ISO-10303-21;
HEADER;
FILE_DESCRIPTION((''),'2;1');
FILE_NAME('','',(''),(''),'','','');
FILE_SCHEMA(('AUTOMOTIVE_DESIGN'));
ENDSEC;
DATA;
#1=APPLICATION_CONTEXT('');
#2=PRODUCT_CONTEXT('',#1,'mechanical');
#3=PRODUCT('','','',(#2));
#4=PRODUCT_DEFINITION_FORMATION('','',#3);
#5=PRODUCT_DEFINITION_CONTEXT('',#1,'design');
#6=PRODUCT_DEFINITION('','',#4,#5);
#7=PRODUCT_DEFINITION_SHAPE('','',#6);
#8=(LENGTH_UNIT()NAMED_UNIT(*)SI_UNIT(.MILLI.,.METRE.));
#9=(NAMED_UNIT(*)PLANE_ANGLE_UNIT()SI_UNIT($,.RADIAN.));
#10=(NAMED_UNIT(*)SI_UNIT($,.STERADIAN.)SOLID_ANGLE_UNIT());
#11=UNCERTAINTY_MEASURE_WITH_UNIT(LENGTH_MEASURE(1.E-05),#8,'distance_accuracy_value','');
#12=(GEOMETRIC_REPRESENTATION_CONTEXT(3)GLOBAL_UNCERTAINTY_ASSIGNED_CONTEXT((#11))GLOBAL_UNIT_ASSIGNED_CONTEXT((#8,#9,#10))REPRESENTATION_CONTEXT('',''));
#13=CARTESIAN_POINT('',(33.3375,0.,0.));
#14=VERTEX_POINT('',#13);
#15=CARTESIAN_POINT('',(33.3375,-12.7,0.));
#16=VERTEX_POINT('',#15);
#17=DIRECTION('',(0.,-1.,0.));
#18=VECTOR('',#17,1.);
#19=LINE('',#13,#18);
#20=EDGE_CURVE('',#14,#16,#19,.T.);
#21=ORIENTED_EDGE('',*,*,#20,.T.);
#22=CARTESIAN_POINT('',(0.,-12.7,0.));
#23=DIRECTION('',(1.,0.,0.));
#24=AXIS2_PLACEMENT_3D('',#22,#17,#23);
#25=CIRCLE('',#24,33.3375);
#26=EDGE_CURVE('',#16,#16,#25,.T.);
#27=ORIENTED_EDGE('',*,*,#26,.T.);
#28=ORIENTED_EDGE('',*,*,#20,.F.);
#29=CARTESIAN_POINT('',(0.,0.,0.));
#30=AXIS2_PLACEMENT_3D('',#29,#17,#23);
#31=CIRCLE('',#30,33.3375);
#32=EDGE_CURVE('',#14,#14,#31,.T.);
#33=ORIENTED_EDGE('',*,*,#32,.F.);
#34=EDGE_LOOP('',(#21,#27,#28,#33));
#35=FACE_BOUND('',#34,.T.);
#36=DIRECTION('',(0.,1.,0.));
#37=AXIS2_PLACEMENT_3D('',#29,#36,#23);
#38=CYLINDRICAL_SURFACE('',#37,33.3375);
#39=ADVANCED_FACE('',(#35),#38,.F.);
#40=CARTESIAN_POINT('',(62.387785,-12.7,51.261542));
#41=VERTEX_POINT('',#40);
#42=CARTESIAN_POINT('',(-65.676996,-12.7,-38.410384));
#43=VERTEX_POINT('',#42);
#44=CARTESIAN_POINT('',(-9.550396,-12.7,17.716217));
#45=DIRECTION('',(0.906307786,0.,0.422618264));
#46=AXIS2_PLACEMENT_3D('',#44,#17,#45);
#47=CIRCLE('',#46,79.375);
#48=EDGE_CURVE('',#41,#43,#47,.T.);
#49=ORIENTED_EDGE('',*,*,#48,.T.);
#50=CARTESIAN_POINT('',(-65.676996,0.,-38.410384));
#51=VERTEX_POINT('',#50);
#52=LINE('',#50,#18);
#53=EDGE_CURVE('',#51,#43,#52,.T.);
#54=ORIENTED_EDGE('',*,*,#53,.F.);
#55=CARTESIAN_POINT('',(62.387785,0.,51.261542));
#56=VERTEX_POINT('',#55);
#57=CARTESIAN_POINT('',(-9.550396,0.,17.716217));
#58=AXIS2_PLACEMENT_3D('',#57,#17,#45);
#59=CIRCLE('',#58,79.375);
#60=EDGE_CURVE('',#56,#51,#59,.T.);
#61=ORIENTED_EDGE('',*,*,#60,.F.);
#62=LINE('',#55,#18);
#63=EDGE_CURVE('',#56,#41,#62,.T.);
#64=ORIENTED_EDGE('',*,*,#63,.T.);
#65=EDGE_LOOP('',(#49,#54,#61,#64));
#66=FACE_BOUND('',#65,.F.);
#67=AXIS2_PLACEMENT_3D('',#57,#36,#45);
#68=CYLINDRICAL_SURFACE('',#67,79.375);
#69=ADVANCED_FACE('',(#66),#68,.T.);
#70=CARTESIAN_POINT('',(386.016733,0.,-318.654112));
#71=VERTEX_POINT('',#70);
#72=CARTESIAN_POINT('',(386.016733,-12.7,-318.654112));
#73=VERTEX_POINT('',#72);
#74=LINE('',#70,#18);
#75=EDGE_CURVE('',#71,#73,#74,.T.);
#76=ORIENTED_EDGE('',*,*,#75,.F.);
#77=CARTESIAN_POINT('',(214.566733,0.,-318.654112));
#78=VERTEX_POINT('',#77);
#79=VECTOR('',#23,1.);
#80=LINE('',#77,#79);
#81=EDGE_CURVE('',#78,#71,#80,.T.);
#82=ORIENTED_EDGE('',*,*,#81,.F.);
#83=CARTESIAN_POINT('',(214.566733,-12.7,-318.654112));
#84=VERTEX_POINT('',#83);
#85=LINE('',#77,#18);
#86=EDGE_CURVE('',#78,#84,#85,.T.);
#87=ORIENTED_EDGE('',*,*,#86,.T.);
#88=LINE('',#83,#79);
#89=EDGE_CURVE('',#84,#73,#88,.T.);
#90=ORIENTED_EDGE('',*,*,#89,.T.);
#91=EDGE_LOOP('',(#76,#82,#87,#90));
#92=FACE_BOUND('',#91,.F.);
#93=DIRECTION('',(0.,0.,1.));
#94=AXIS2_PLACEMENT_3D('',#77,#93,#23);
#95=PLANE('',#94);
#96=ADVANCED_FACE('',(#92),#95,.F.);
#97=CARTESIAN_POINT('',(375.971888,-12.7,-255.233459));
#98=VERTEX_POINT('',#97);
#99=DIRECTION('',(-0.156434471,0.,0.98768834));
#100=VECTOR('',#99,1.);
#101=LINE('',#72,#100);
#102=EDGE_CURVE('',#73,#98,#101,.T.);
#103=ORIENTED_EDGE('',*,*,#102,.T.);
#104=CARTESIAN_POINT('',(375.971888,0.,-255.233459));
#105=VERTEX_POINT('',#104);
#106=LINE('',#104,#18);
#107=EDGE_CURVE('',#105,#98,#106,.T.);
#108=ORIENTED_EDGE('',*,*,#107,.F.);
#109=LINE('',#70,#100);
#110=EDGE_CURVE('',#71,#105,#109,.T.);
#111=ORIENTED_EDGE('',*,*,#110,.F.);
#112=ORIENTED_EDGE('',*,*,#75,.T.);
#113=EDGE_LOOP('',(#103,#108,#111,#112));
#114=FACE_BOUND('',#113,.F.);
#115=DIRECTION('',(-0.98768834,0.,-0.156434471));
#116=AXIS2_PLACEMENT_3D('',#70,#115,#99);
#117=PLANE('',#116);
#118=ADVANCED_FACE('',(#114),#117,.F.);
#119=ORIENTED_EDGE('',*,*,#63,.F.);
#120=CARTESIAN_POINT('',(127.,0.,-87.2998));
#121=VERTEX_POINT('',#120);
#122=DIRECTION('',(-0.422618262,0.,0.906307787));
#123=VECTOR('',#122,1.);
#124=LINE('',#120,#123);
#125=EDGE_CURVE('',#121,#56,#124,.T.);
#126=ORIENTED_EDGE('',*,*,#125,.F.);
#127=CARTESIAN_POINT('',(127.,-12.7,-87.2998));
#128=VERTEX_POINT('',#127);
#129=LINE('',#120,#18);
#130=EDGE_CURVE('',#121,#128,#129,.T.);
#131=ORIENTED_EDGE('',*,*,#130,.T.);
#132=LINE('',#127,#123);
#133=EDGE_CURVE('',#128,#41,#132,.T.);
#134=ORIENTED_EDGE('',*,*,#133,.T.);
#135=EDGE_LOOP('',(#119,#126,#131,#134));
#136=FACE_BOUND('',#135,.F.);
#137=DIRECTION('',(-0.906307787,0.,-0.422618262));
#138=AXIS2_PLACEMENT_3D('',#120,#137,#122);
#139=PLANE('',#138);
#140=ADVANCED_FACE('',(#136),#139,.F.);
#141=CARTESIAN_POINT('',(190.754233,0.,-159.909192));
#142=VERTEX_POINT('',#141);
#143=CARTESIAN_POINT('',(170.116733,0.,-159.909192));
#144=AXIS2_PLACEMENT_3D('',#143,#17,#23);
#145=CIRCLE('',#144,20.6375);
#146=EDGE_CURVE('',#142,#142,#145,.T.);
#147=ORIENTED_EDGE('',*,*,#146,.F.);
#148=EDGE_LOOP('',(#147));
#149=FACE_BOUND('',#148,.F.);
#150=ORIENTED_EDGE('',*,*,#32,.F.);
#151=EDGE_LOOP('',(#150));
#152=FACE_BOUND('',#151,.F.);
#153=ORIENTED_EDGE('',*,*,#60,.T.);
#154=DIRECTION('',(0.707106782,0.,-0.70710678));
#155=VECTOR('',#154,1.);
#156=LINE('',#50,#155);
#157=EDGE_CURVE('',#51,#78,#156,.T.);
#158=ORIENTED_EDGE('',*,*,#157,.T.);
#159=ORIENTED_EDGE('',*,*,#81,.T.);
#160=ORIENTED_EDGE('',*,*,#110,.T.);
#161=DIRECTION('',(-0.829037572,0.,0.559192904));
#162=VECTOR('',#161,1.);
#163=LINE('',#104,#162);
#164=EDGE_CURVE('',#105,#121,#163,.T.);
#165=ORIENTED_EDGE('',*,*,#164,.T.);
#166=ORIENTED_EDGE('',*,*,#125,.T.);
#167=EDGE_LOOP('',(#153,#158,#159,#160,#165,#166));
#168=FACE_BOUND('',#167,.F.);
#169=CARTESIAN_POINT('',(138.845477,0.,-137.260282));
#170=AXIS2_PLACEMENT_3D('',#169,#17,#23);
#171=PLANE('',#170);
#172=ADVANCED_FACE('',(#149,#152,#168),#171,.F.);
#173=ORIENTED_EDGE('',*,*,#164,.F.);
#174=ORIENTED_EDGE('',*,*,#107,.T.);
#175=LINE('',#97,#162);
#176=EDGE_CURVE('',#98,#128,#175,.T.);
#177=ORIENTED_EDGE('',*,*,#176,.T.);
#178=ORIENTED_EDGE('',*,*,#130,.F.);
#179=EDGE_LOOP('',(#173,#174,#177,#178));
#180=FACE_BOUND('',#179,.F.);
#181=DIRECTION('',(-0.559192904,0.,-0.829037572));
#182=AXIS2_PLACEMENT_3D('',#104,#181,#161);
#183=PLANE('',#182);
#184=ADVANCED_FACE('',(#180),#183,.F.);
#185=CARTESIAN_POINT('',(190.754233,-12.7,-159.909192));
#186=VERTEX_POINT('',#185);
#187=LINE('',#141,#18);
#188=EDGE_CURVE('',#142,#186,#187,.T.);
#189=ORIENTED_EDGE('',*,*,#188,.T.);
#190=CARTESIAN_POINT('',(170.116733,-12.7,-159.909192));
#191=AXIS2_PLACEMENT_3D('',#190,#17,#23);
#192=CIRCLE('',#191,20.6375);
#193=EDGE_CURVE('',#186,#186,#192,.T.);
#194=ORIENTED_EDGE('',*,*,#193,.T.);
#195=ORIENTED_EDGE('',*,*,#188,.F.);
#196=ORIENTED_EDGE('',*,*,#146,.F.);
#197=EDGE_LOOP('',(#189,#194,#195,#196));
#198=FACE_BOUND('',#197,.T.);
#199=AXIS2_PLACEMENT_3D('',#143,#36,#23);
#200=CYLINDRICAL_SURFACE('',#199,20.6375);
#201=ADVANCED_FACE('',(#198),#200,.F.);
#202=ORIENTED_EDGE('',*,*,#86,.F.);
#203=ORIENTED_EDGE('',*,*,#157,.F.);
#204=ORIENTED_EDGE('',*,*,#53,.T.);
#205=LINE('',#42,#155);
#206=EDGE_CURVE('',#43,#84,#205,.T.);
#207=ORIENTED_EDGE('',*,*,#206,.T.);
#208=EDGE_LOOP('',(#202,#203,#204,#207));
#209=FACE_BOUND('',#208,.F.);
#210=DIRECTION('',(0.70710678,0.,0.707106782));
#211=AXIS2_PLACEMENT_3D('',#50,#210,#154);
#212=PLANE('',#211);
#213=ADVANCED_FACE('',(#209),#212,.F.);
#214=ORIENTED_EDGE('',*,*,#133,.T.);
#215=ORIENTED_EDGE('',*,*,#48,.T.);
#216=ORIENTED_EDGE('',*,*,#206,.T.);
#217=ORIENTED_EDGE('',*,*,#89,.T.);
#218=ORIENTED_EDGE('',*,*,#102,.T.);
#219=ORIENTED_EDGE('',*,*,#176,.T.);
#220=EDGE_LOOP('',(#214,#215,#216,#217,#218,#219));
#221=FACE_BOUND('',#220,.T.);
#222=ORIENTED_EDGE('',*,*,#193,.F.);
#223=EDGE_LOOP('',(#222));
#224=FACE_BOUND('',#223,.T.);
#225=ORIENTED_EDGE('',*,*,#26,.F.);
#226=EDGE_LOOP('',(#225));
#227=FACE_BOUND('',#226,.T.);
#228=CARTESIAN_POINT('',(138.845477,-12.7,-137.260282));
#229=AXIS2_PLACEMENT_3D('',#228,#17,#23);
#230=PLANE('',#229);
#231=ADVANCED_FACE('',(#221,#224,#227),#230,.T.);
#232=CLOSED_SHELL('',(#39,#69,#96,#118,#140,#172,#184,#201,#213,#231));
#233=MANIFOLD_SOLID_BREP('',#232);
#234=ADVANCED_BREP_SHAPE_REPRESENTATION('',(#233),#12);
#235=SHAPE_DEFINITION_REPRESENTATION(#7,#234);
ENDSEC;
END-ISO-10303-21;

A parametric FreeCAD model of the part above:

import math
import FreeCAD as App
import Part
import Sketcher
Q = App.Units.Quantity

doc = App.newDocument("Part")
body = doc.addObject("PartDesign::Body", "Body")

# Sketch on XZ plane
sketch1 = doc.addObject("Sketcher::SketchObject", "Sketch")
body.addObject(sketch1)
sketch1.AttachmentSupport = (doc.XZ_Plane, [""])
sketch1.MapMode = "FlatFace"
sketch1.addGeometry([
    Part.LineSegment(App.Vector(127, -87, 0), App.Vector(62, 51, 0)),  # 0
    Part.ArcOfCircle(Part.Circle(App.Vector(-10, 18, 0), App.Vector(0, 0, 1), 79), math.radians(25), math.radians(225)),  # 1
    Part.LineSegment(App.Vector(-66, -38, 0), App.Vector(215, -319, 0)),  # 2
    Part.LineSegment(App.Vector(215, -319, 0), App.Vector(386, -319, 0)),  # 3
    Part.LineSegment(App.Vector(386, -319, 0), App.Vector(376, -255, 0)),  # 4
    Part.LineSegment(App.Vector(376, -255, 0), App.Vector(127, -87, 0)),  # 5
    Part.Circle(App.Vector(170, -160, 0), App.Vector(0, 0, 1), 21),  # 6
    Part.Circle(App.Vector(0, 0, 0), App.Vector(0, 0, 1), 33),  # 7
], False)
sketch1.addConstraint([
    Sketcher.Constraint("Tangent", 0, 2, 1, 1),
    Sketcher.Constraint("Tangent", 1, 2, 2, 1),
    Sketcher.Constraint("Coincident", 2, 2, 3, 1),
    Sketcher.Constraint("Coincident", 3, 2, 4, 1),
    Sketcher.Constraint("Coincident", 4, 2, 5, 1),
    Sketcher.Constraint("Coincident", 5, 2, 0, 1),
    Sketcher.Constraint("Horizontal", 3),
    Sketcher.Constraint("Coincident", 7, 3, -1, 1),
    Sketcher.Constraint("Diameter", 6, Q("1.625 in")),
    Sketcher.Constraint("Diameter", 7, Q("2.625 in")),
    Sketcher.Constraint("DistanceX", -1, 1, 5, 2, Q("5 in")),
    Sketcher.Constraint("Angle", 0, Q("115 deg")),
    Sketcher.Constraint("Angle", 2, Q("-45 deg")),
    Sketcher.Constraint("Angle", 4, Q("99 deg")),
    Sketcher.Constraint("Angle", 5, Q("146 deg")),
    Sketcher.Constraint("Radius", 1, Q("3.125 in")),
    Sketcher.Constraint("DistanceX", 3, 1, 3, 2, Q("6.75 in")),
    Sketcher.Constraint("DistanceX", 6, 3, 3, 2, Q("8.5 in")),
    Sketcher.Constraint("Distance", 4, Q("2.528 in")),
    Sketcher.Constraint("DistanceX", 1, 3, -1, 1, Q("0.3759998 in")),
    Sketcher.Constraint("DistanceY", 5, 2, -1, 1, Q("3.437 in")),
    Sketcher.Constraint("DistanceY", 2, 2, 6, 3, Q("6.2498 in")),
])
pad1 = doc.addObject("PartDesign::Pad", "Pad")
body.addObject(pad1)
pad1.Profile = sketch1
pad1.Length = Q("0.5 in")

doc.recompute()
